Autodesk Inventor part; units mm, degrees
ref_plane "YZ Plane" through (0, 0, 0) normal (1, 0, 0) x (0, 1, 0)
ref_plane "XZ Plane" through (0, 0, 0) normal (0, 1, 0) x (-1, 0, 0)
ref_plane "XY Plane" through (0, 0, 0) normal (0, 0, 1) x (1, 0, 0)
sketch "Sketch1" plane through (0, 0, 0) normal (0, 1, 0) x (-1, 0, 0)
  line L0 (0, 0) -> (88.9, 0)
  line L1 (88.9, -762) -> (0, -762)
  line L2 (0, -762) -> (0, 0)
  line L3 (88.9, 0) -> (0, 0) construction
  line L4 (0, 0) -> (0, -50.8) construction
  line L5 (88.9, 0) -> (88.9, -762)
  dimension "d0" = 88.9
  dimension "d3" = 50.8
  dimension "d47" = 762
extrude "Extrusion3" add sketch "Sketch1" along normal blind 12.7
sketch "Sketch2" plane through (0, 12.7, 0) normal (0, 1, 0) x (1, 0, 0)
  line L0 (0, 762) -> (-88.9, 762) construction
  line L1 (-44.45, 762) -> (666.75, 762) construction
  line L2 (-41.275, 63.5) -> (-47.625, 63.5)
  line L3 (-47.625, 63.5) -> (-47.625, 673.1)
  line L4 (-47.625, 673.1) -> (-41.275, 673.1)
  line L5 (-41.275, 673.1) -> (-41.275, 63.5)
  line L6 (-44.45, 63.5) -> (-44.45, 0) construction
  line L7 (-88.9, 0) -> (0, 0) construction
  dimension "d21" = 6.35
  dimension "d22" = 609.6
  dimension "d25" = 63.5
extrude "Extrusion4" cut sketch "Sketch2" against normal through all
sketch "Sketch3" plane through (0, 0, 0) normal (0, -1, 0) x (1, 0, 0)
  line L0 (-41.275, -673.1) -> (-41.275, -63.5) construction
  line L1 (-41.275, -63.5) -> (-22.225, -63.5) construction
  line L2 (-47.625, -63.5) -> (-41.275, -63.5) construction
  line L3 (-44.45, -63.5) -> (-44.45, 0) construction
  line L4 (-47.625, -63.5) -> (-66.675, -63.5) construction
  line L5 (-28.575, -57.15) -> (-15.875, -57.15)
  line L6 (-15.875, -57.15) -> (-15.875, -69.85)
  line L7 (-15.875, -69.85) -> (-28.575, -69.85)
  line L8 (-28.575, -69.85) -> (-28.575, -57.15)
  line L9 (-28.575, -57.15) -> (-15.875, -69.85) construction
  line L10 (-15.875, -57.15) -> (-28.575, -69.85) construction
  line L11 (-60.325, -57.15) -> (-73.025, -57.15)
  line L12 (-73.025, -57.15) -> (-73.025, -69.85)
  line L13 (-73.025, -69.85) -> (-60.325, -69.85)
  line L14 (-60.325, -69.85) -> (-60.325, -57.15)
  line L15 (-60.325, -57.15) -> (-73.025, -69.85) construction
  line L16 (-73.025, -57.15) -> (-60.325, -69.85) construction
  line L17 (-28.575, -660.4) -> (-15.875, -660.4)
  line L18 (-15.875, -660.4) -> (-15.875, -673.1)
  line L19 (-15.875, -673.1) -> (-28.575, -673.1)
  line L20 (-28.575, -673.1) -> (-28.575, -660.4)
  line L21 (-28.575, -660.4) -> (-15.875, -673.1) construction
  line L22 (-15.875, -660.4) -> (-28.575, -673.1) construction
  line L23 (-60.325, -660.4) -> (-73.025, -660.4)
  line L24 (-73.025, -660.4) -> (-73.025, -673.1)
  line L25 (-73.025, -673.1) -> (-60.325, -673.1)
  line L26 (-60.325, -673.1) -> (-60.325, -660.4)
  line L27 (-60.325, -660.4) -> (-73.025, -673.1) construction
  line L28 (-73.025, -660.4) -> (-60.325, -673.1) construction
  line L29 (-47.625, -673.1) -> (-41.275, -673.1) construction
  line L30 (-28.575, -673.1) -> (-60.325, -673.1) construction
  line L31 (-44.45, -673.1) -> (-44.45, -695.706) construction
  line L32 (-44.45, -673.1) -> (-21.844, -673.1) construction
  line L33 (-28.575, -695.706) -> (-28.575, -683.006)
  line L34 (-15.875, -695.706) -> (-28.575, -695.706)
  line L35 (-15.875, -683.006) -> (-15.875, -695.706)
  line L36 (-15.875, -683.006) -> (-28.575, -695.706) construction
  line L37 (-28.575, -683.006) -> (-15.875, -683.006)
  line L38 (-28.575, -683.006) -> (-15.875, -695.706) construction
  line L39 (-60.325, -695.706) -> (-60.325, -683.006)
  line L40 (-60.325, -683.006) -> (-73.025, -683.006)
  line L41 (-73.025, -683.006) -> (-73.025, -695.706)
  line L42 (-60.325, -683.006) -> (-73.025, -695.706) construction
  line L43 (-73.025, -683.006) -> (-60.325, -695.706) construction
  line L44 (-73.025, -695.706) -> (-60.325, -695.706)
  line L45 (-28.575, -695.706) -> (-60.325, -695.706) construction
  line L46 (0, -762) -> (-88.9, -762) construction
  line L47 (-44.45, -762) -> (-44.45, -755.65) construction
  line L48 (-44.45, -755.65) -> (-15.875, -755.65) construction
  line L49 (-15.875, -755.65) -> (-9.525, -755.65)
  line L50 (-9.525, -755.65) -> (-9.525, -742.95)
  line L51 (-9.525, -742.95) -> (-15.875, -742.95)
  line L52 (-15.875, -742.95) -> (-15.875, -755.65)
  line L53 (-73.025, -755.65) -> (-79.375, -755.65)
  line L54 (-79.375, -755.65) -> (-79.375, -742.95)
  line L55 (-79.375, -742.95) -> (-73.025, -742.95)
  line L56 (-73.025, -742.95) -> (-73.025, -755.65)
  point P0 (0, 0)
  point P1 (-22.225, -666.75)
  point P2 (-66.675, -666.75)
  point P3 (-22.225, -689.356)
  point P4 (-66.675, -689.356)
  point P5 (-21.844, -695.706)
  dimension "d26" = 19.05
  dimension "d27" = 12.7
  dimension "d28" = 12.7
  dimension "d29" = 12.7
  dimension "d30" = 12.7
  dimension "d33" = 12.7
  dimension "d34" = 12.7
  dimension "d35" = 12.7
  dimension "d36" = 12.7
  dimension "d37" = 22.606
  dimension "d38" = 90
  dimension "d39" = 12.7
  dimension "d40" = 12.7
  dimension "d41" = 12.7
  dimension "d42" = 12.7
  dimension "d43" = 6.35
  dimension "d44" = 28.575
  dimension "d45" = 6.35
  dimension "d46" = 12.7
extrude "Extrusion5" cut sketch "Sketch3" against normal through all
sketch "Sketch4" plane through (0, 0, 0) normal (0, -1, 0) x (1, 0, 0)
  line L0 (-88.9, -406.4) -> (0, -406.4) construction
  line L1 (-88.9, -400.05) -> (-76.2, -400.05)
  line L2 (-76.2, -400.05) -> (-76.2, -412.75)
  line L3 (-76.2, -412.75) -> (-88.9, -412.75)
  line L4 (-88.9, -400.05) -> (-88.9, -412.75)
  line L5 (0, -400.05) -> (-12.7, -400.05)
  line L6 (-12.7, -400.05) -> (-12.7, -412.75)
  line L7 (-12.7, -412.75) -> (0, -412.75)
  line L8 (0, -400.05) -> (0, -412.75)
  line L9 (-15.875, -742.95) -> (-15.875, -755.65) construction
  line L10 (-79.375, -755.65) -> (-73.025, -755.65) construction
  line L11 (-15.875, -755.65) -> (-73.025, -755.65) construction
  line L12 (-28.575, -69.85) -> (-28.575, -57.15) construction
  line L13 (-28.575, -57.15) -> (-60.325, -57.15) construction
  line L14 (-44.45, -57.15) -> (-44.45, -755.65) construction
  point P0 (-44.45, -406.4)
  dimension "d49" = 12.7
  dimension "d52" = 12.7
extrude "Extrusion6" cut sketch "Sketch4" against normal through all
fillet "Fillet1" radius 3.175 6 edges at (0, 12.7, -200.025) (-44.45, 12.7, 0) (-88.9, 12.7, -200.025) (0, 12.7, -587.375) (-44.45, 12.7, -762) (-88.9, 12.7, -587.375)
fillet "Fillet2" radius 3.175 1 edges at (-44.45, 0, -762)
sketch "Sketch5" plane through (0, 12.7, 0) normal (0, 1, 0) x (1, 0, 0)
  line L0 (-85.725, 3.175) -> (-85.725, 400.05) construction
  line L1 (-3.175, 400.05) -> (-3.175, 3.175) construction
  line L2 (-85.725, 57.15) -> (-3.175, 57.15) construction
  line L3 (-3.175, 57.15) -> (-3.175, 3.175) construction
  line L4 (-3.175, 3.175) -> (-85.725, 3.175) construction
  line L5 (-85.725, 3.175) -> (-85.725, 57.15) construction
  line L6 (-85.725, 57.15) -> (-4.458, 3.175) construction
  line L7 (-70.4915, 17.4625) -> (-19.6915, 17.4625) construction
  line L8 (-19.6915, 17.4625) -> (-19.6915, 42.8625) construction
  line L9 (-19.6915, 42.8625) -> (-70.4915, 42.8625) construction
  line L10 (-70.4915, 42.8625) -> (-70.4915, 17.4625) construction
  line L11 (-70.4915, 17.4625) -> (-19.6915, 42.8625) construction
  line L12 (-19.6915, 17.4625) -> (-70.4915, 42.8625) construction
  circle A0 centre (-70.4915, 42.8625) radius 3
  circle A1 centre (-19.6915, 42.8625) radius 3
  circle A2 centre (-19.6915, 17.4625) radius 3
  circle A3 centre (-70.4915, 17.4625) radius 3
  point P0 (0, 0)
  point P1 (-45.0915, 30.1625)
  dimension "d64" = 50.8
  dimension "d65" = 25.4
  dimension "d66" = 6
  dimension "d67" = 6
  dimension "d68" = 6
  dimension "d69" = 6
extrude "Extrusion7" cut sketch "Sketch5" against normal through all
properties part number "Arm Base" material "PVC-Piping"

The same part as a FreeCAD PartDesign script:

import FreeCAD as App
import Part
import Sketcher
from FreeCAD import Vector
Q = App.Units.Quantity


def edges_at(feature, points):
    """Names of the edges that pass closest to the given points."""
    edges = feature.Shape.Edges
    near = lambda p: min(range(len(edges)), key=lambda i: edges[i].distToShape(Part.Vertex(*p))[0])
    return sorted({f"Edge{near(p) + 1}" for p in points})


def add_polygon(sketch, points):
    """Adds a closed chain of lines whose ends are joined by coincident constraints."""
    first, n = sketch.GeometryCount, len(points)
    for a, b in zip(points, points[1:] + points[:1]):
        sketch.addGeometry(Part.LineSegment(App.Vector(*a, 0), App.Vector(*b, 0)), False)
    for i in range(n):
        sketch.addConstraint(Sketcher.Constraint("Coincident", first + i, 2, first + (i + 1) % n, 1))

doc = App.newDocument("Part")
body = doc.addObject("PartDesign::Body", "Body")

sketch1 = body.newObject("Sketcher::SketchObject", "Sketch")
sketch1.AttachmentSupport = (doc.getObject("XZ_Plane"), [""])
sketch1.MapMode = "FlatFace"
add_polygon(sketch1, [(-89, 0), (0, 0), (0, -762), (-89, -762)])
sketch1.addConstraint(Sketcher.Constraint("Horizontal", 0))
sketch1.addConstraint(Sketcher.Constraint("Vertical", 1))
sketch1.addConstraint(Sketcher.Constraint("Horizontal", 2))
sketch1.addConstraint(Sketcher.Constraint("Vertical", 3))
sketch1.addConstraint(Sketcher.Constraint("Coincident", 0, 2, -1, 1))
sketch1.addConstraint(Sketcher.Constraint("DistanceY", 1, 2, 1, 1, Q("30 in")))
sketch1.addConstraint(Sketcher.Constraint("DistanceX", 0, 1, 0, 2, Q("3.5 in")))
pad1 = body.newObject("PartDesign::Pad", "Pad")
pad1.Profile = sketch1
pad1.Length = Q("0.5 in")
pad1.Reversed = True

sketch2 = body.newObject("Sketcher::SketchObject", "Sketch001")
sketch2.AttachmentSupport = (doc.getObject("XZ_Plane"), [""])
sketch2.MapMode = "FlatFace"
sketch2.AttachmentOffset = App.Placement(Vector(0, 0, -0.5 * 25.4), App.Rotation())
add_polygon(sketch2, [(-48, -64), (-41, -64), (-41, -673), (-48, -673)])
sketch2.addConstraint(Sketcher.Constraint("Horizontal", 0))
sketch2.addConstraint(Sketcher.Constraint("Vertical", 1))
sketch2.addConstraint(Sketcher.Constraint("Horizontal", 2))
sketch2.addConstraint(Sketcher.Constraint("Vertical", 3))
sketch2.addConstraint(Sketcher.Constraint("DistanceY", 1, 2, 1, 1, Q("24 in")))
sketch2.addConstraint(Sketcher.Constraint("DistanceX", 0, 1, 0, 2, Q("0.25 in")))
sketch2.addConstraint(Sketcher.Constraint("DistanceY", 0, 2, -1, 1, Q("2.5 in")))
sketch2.addConstraint(Sketcher.Constraint("DistanceX", 0, 2, -1, 1, Q("1.625 in")))
pocket1 = body.newObject("PartDesign::Pocket", "Pocket")
pocket1.Profile = sketch2
pocket1.Type = "ThroughAll"
pocket1.Reversed = True

sketch3 = body.newObject("Sketcher::SketchObject", "Sketch002")
sketch3.AttachmentSupport = (doc.getObject("XZ_Plane"), [""])
sketch3.MapMode = "FlatFace"
add_polygon(sketch3, [(-16, -57), (-29, -57), (-29, -70), (-16, -70)])
add_polygon(sketch3, [(-60, -70), (-60, -57), (-73, -57), (-73, -70)])
add_polygon(sketch3, [(-16, -660), (-29, -660), (-29, -673), (-16, -673)])
add_polygon(sketch3, [(-60, -673), (-60, -660), (-73, -660), (-73, -673)])
add_polygon(sketch3, [(-29, -683), (-29, -696), (-16, -696), (-16, -683)])
add_polygon(sketch3, [(-73, -696), (-60, -696), (-60, -683), (-73, -683)])
add_polygon(sketch3, [(-16, -743), (-16, -756), (-10, -756), (-10, -743)])
add_polygon(sketch3, [(-79, -756), (-73, -756), (-73, -743), (-79, -743)])
sketch3.addConstraint(Sketcher.Constraint("Horizontal", 0))
sketch3.addConstraint(Sketcher.Constraint("Vertical", 1))
sketch3.addConstraint(Sketcher.Constraint("Horizontal", 2))
sketch3.addConstraint(Sketcher.Constraint("Vertical", 3))
sketch3.addConstraint(Sketcher.Constraint("Vertical", 4))
sketch3.addConstraint(Sketcher.Constraint("Horizontal", 5))
sketch3.addConstraint(Sketcher.Constraint("Vertical", 6))
sketch3.addConstraint(Sketcher.Constraint("Horizontal", 7))
sketch3.addConstraint(Sketcher.Constraint("Horizontal", 8))
sketch3.addConstraint(Sketcher.Constraint("Vertical", 9))
sketch3.addConstraint(Sketcher.Constraint("Horizontal", 10))
sketch3.addConstraint(Sketcher.Constraint("Vertical", 11))
sketch3.addConstraint(Sketcher.Constraint("Vertical", 12))
sketch3.addConstraint(Sketcher.Constraint("Horizontal", 13))
sketch3.addConstraint(Sketcher.Constraint("Vertical", 14))
sketch3.addConstraint(Sketcher.Constraint("Horizontal", 15))
sketch3.addConstraint(Sketcher.Constraint("Vertical", 16))
sketch3.addConstraint(Sketcher.Constraint("Horizontal", 17))
sketch3.addConstraint(Sketcher.Constraint("Vertical", 18))
sketch3.addConstraint(Sketcher.Constraint("Horizontal", 19))
sketch3.addConstraint(Sketcher.Constraint("Horizontal", 20))
sketch3.addConstraint(Sketcher.Constraint("Vertical", 21))
sketch3.addConstraint(Sketcher.Constraint("Horizontal", 22))
sketch3.addConstraint(Sketcher.Constraint("Vertical", 23))
sketch3.addConstraint(Sketcher.Constraint("Vertical", 24))
sketch3.addConstraint(Sketcher.Constraint("Horizontal", 25))
sketch3.addConstraint(Sketcher.Constraint("Vertical", 26))
sketch3.addConstraint(Sketcher.Constraint("Horizontal", 27))
sketch3.addConstraint(Sketcher.Constraint("Horizontal", 28))
sketch3.addConstraint(Sketcher.Constraint("Vertical", 29))
sketch3.addConstraint(Sketcher.Constraint("Horizontal", 30))
sketch3.addConstraint(Sketcher.Constraint("Vertical", 31))
sketch3.addConstraint(Sketcher.Constraint("Horizontal", 3, 2, 4, 2))
sketch3.addConstraint(Sketcher.Constraint("Horizontal", 2, 2, 6, 2))
sketch3.addConstraint(Sketcher.Constraint("Horizontal", 11, 2, 12, 2))
sketch3.addConstraint(Sketcher.Constraint("Horizontal", 10, 2, 14, 2))
sketch3.addConstraint(Sketcher.Constraint("Horizontal", 17, 2, 20, 2))
sketch3.addConstraint(Sketcher.Constraint("Horizontal", 19, 2, 21, 2))
sketch3.addConstraint(Sketcher.Constraint("Horizontal", 25, 2, 28, 2))
sketch3.addConstraint(Sketcher.Constraint("Horizontal", 27, 2, 29, 2))
sketch3.addConstraint(Sketcher.Constraint("Vertical", 1, 2, 8, 2))
sketch3.addConstraint(Sketcher.Constraint("Vertical", 3, 2, 10, 2))
sketch3.addConstraint(Sketcher.Constraint("Vertical", 7, 2, 12, 2))
sketch3.addConstraint(Sketcher.Constraint("Vertical", 6, 2, 13, 2))
sketch3.addConstraint(Sketcher.Constraint("Vertical", 9, 2, 16, 2))
sketch3.addConstraint(Sketcher.Constraint("Vertical", 11, 2, 17, 2))
sketch3.addConstraint(Sketcher.Constraint("Vertical", 15, 2, 20, 2))
sketch3.addConstraint(Sketcher.Constraint("Vertical", 14, 2, 22, 2))
sketch3.addConstraint(Sketcher.Constraint("Vertical", 18, 2, 24, 2))
sketch3.addConstraint(Sketcher.Constraint("Vertical", 23, 2, 28, 2))
sketch3.addConstraint(Sketcher.Constraint("Equal", 2, 5))
sketch3.addConstraint(Sketcher.Constraint("Equal", 27, 28))
sketch3.addConstraint(Sketcher.Constraint("Equal", 22, 1))
sketch3.addConstraint(Sketcher.Constraint("Equal", 6, 9))
sketch3.addConstraint(Sketcher.Constraint("Equal", 14, 16))
sketch3.addConstraint(Sketcher.Constraint("Equal", 23, 24))
sketch3.addConstraint(Sketcher.Constraint("DistanceX", 0, 2, 0, 1, Q("0.5 in")))
sketch3.addConstraint(Sketcher.Constraint("DistanceX", 25, 1, 25, 2, Q("0.25 in")))
sketch3.addConstraint(Sketcher.Constraint("DistanceY", 16, 2, 9, 2, Q("0.89 in")))
sketch3.addConstraint(Sketcher.Constraint("DistanceX", 0, 2, -1, 1, Q("1.125 in")))
sketch3.addConstraint(Sketcher.Constraint("DistanceY", 8, 2, -1, 1, Q("26 in")))
sketch3.addConstraint(Sketcher.Constraint("DistanceX", 28, 2, 25, 2, Q("2.5 in")))
sketch3.addConstraint(Sketcher.Constraint("DistanceY", 0, 2, -1, 1, Q("2.25 in")))
sketch3.addConstraint(Sketcher.Constraint("DistanceY", 24, 2, -1, 1, Q("29.75 in")))
pocket2 = body.newObject("PartDesign::Pocket", "Pocket001")
pocket2.Profile = sketch3
pocket2.Type = "ThroughAll"

sketch4 = body.newObject("Sketcher::SketchObject", "Sketch003")
sketch4.AttachmentSupport = (doc.getObject("XZ_Plane"), [""])
sketch4.MapMode = "FlatFace"
add_polygon(sketch4, [(-76, -400), (-89, -400), (-89, -413), (-76, -413)])
add_polygon(sketch4, [(0, -413), (0, -400), (-13, -400), (-13, -413)])
sketch4.addConstraint(Sketcher.Constraint("Horizontal", 0))
sketch4.addConstraint(Sketcher.Constraint("Vertical", 1))
sketch4.addConstraint(Sketcher.Constraint("Horizontal", 2))
sketch4.addConstraint(Sketcher.Constraint("Vertical", 3))
sketch4.addConstraint(Sketcher.Constraint("Vertical", 4))
sketch4.addConstraint(Sketcher.Constraint("Horizontal", 5))
sketch4.addConstraint(Sketcher.Constraint("Vertical", 6))
sketch4.addConstraint(Sketcher.Constraint("Horizontal", 7))
sketch4.addConstraint(Sketcher.Constraint("PointOnObject", 4, 2, -2))
sketch4.addConstraint(Sketcher.Constraint("Horizontal", 3, 2, 4, 2))
sketch4.addConstraint(Sketcher.Constraint("Horizontal", 2, 2, 6, 2))
sketch4.addConstraint(Sketcher.Constraint("Equal", 2, 5))
sketch4.addConstraint(Sketcher.Constraint("Equal", 7, 1))
sketch4.addConstraint(Sketcher.Constraint("DistanceX", 0, 2, 0, 1, Q("0.5 in")))
sketch4.addConstraint(Sketcher.Constraint("DistanceX", 2, 2, -1, 1, Q("3 in")))
sketch4.addConstraint(Sketcher.Constraint("DistanceY", 0, 2, -1, 1, Q("15.75 in")))
pocket3 = body.newObject("PartDesign::Pocket", "Pocket002")
pocket3.Profile = sketch4
pocket3.Type = "ThroughAll"
doc.recompute()

fillet = body.newObject("PartDesign::Fillet", "Fillet")
fillet.Base = (pocket3, edges_at(pocket3, [
    (0, 12.7, -200.025),
    (-44.45, 12.7, 0),
    (-88.9, 12.7, -200.025),
    (0, 12.7, -587.375),
    (-44.45, 12.7, -762),
    (-88.9, 12.7, -587.375),
]))
fillet.Radius = Q("0.125 in")
doc.recompute()

fillet2 = body.newObject("PartDesign::Fillet", "Fillet001")
fillet2.Base = (fillet, edges_at(fillet, [(-44.45, 0, -762)]))
fillet2.Radius = Q("0.125 in")

sketch5 = body.newObject("Sketcher::SketchObject", "Sketch004")
sketch5.AttachmentSupport = (doc.getObject("XZ_Plane"), [""])
sketch5.MapMode = "FlatFace"
sketch5.AttachmentOffset = App.Placement(Vector(0, 0, -0.5 * 25.4), App.Rotation())
sketch5.addGeometry(Part.Circle(Vector(-70.5, -42.9, 0), Vector(0, 0, 1), 3), False)
sketch5.addGeometry(Part.Circle(Vector(-19.7, -42.9, 0), Vector(0, 0, 1), 3), False)
sketch5.addGeometry(Part.Circle(Vector(-19.7, -17.5, 0), Vector(0, 0, 1), 3), False)
sketch5.addGeometry(Part.Circle(Vector(-70.5, -17.5, 0), Vector(0, 0, 1), 3), False)
sketch5.addConstraint(Sketcher.Constraint("Equal", 0, 1))
sketch5.addConstraint(Sketcher.Constraint("Equal", 1, 2))
sketch5.addConstraint(Sketcher.Constraint("Equal", 2, 3))
sketch5.addConstraint(Sketcher.Constraint("Horizontal", 0, 3, 1, 3))
sketch5.addConstraint(Sketcher.Constraint("Horizontal", 2, 3, 3, 3))
sketch5.addConstraint(Sketcher.Constraint("Vertical", 1, 3, 2, 3))
sketch5.addConstraint(Sketcher.Constraint("Vertical", 0, 3, 3, 3))
sketch5.addConstraint(Sketcher.Constraint("DistanceX", 0, 3, 1, 3, Q("2 in")))
sketch5.addConstraint(Sketcher.Constraint("DistanceY", 1, 3, 2, 3, Q("1 in")))
sketch5.addConstraint(Sketcher.Constraint("Diameter", 0, 6.0))
sketch5.addConstraint(Sketcher.Constraint("DistanceY", 0, 3, -1, 1, Q("1.6875 in")))
sketch5.addConstraint(Sketcher.Constraint("DistanceX", 0, 3, -1, 1, 70.4915))
pocket4 = body.newObject("PartDesign::Pocket", "Pocket003")
pocket4.Profile = sketch5
pocket4.Type = "ThroughAll"
pocket4.Reversed = True

doc.recompute()
